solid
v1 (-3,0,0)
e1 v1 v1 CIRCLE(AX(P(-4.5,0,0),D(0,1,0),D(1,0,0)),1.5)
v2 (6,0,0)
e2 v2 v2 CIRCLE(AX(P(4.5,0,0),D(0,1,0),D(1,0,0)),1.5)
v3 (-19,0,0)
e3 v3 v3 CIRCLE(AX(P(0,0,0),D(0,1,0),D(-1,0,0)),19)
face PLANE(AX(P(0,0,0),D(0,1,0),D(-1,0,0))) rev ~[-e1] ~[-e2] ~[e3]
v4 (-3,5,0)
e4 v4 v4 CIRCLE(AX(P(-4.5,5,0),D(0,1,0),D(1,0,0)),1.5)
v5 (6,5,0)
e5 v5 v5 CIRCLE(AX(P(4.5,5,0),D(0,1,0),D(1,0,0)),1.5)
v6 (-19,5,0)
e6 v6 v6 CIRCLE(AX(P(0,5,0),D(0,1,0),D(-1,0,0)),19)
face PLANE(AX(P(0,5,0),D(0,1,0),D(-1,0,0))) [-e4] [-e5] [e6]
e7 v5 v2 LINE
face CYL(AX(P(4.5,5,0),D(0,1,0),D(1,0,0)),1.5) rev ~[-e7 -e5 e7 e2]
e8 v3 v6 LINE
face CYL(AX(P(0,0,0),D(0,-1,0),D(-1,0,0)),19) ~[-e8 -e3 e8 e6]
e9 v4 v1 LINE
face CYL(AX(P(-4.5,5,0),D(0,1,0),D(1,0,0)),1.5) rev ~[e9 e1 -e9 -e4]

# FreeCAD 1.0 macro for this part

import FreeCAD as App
import Part
import Sketcher
Q = App.Units.Quantity

doc = App.newDocument("Part")
params = doc.addObject("Spreadsheet::Sheet", "Params")
for row, (alias, value) in enumerate([
    ("sketch1_diameter", "38 mm"),
    ("pad1_length", "5 mm"),
    ("sketch2_diameter", "3 mm"),
    ("pocket1_length", "5 mm"),
    ("sketch3_diameter", "3 mm"),
    ("pocket2_length", "5 mm"),
], start=1):
    params.set(f"A{row}", alias)
    params.set(f"B{row}", "=" + value)
    params.setAlias(f"B{row}", alias)

body = doc.addObject("PartDesign::Body", "Body")

# Sketch on XZ plane
sketch1 = body.newObject("Sketcher::SketchObject", "Sketch")
sketch1.AttachmentSupport = (doc.getObject("XZ_Plane"), [""])
sketch1.MapMode = "FlatFace"
sketch1.addGeometry(Part.Circle(App.Vector(0, 0, 0), App.Vector(0, 0, 1), 19), False)
sketch1.addConstraint(Sketcher.Constraint("Coincident", 0, 3, -1, 1))
sketch1.addConstraint(Sketcher.Constraint("Diameter", 0, Q("38 mm")))
sketch1.setExpression("Constraints[1]", "Params.sketch1_diameter")
pad1 = body.newObject("PartDesign::Pad", "Pad")
pad1.Profile = sketch1
pad1.setExpression("Length", "Params.pad1_length")
pad1.Reversed = True

# Sketch on XZ plane
sketch2 = body.newObject("Sketcher::SketchObject", "Sketch001")
sketch2.AttachmentSupport = (doc.getObject("XZ_Plane"), [""])
sketch2.MapMode = "FlatFace"
sketch2.AttachmentOffset = App.Placement(App.Vector(0, 0, -5), App.Rotation())
sketch2.addGeometry(Part.Circle(App.Vector(-4.5, 0, 0), App.Vector(0, 0, 1), 1.5), False)
sketch2.addConstraint(Sketcher.Constraint("PointOnObject", 0, 3, -1))
sketch2.addConstraint(Sketcher.Constraint("Diameter", 0, Q("3 mm")))
sketch2.addConstraint(Sketcher.Constraint("DistanceX", 0, 3, -1, 1, Q("4.5 mm")))
sketch2.setExpression("Constraints[1]", "Params.sketch2_diameter")
pocket1 = body.newObject("PartDesign::Pocket", "Pocket")
pocket1.Profile = sketch2
pocket1.setExpression("Length", "Params.pocket1_length")
pocket1.Reversed = True

# Sketch on XZ plane
sketch3 = body.newObject("Sketcher::SketchObject", "Sketch002")
sketch3.AttachmentSupport = (doc.getObject("XZ_Plane"), [""])
sketch3.MapMode = "FlatFace"
sketch3.AttachmentOffset = App.Placement(App.Vector(0, 0, -5), App.Rotation())
sketch3.addGeometry(Part.Circle(App.Vector(4.5, 0, 0), App.Vector(0, 0, 1), 1.5), False)
sketch3.addConstraint(Sketcher.Constraint("PointOnObject", 0, 3, -1))
sketch3.addConstraint(Sketcher.Constraint("Diameter", 0, Q("3 mm")))
sketch3.addConstraint(Sketcher.Constraint("DistanceX", -1, 1, 0, 3, Q("4.5 mm")))
sketch3.setExpression("Constraints[1]", "Params.sketch3_diameter")
pocket2 = body.newObject("PartDesign::Pocket", "Pocket001")
pocket2.Profile = sketch3
pocket2.setExpression("Length", "Params.pocket2_length")
pocket2.Reversed = True

doc.recompute()
